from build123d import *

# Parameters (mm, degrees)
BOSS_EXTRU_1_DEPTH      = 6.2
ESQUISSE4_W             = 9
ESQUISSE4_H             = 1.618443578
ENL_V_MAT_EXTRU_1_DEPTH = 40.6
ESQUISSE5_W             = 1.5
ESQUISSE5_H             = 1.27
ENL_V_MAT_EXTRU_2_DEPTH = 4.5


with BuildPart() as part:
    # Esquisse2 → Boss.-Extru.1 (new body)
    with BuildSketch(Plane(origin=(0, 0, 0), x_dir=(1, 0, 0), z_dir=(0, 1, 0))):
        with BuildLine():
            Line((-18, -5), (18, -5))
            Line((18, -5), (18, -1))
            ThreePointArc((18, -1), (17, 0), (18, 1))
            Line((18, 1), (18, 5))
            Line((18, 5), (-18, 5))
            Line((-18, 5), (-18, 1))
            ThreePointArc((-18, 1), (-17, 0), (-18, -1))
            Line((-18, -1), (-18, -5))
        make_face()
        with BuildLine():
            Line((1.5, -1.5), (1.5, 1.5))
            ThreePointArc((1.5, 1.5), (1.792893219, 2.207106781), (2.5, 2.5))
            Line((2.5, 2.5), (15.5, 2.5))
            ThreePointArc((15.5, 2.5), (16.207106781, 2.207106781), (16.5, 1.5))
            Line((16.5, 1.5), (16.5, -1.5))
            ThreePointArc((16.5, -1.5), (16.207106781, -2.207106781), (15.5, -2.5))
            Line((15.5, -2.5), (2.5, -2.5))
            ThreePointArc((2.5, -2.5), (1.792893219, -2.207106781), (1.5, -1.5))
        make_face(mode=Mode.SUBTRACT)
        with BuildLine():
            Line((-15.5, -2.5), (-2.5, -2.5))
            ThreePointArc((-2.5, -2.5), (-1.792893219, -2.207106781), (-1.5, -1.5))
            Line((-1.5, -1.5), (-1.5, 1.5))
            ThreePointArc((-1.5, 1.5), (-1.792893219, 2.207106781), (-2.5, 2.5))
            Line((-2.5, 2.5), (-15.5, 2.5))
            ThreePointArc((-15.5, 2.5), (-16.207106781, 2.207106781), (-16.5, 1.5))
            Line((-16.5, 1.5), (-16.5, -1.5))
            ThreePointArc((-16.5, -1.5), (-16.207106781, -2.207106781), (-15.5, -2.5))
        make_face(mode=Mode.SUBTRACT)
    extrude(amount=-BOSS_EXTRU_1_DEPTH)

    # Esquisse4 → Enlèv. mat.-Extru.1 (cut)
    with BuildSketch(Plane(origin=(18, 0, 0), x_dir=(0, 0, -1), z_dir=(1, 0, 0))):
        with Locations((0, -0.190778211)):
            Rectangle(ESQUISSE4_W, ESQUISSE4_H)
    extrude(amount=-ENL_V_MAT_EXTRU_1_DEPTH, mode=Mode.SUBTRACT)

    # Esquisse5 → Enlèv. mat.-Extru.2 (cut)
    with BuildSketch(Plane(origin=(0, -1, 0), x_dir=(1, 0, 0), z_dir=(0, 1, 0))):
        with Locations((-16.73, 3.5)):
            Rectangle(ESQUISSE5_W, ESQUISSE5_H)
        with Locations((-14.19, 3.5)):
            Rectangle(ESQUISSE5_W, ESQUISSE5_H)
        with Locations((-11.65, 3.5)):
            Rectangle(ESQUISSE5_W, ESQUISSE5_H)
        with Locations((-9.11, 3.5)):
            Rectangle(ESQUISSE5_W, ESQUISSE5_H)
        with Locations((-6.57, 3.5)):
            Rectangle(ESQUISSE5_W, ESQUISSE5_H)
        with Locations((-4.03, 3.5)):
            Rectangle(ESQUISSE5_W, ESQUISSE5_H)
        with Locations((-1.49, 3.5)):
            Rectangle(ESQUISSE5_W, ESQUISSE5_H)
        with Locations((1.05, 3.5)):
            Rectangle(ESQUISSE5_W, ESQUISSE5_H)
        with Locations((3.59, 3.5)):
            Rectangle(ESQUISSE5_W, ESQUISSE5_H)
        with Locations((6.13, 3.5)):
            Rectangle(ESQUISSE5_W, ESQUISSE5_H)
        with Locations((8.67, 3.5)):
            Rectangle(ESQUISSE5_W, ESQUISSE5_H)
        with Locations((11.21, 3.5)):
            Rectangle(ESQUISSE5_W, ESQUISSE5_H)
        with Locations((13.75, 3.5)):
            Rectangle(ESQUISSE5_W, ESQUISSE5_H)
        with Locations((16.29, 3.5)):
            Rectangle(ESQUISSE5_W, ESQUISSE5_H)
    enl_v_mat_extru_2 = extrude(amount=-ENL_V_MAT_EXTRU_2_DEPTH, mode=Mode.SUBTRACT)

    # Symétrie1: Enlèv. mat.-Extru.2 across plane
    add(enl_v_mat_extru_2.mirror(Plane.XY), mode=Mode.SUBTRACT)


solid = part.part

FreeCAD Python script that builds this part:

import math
import FreeCAD as App
import Part
import Sketcher
Q = App.Units.Quantity


def add_polygon(sketch, points):
    """Adds a closed chain of lines whose ends are joined by coincident constraints."""
    first, n = sketch.GeometryCount, len(points)
    for a, b in zip(points, points[1:] + points[:1]):
        sketch.addGeometry(Part.LineSegment(App.Vector(*a, 0), App.Vector(*b, 0)), False)
    for i in range(n):
        sketch.addConstraint(Sketcher.Constraint("Coincident", first + i, 2, first + (i + 1) % n, 1))

doc = App.newDocument("Part")
body = doc.addObject("PartDesign::Body", "Body")

sketch1 = doc.addObject("Sketcher::SketchObject", "Sketch")
body.addObject(sketch1)
sketch1.AttachmentSupport = (doc.XZ_Plane, [""])
sketch1.MapMode = "FlatFace"
sketch1.addGeometry(Part.LineSegment(App.Vector(-18, 5, 0), App.Vector(18, 5, 0)), False)
sketch1.addGeometry(Part.LineSegment(App.Vector(18, 5, 0), App.Vector(18, 1, 0)), False)
sketch1.addGeometry(Part.ArcOfCircle(Part.Circle(App.Vector(18, 0, 0), App.Vector(0, 0, 1), 1), math.radians(90), math.radians(270)), False)
sketch1.addGeometry(Part.LineSegment(App.Vector(18, -1, 0), App.Vector(18, -5, 0)), False)
sketch1.addGeometry(Part.LineSegment(App.Vector(18, -5, 0), App.Vector(-18, -5, 0)), False)
sketch1.addGeometry(Part.LineSegment(App.Vector(-18, -5, 0), App.Vector(-18, -1, 0)), False)
sketch1.addGeometry(Part.ArcOfCircle(Part.Circle(App.Vector(-18, 0, 0), App.Vector(0, 0, 1), 1), math.radians(-90), math.radians(90)), False)
sketch1.addGeometry(Part.LineSegment(App.Vector(-18, 1, 0), App.Vector(-18, 5, 0)), False)
sketch1.addGeometry(Part.LineSegment(App.Vector(-2.5, 2.5, 0), App.Vector(-15.5, 2.5, 0)), False)
sketch1.addGeometry(Part.ArcOfCircle(Part.Circle(App.Vector(-15.5, 1.5, 0), App.Vector(0, 0, 1), 1), math.radians(90), math.radians(180)), False)
sketch1.addGeometry(Part.LineSegment(App.Vector(-16.5, 1.5, 0), App.Vector(-16.5, -1.5, 0)), False)
sketch1.addGeometry(Part.ArcOfCircle(Part.Circle(App.Vector(-15.5, -1.5, 0), App.Vector(0, 0, 1), 1), math.radians(-180), math.radians(-90)), False)
sketch1.addGeometry(Part.LineSegment(App.Vector(-15.5, -2.5, 0), App.Vector(-2.5, -2.5, 0)), False)
sketch1.addGeometry(Part.ArcOfCircle(Part.Circle(App.Vector(-2.5, -1.5, 0), App.Vector(0, 0, 1), 1), math.radians(-90), math.radians(0)), False)
sketch1.addGeometry(Part.LineSegment(App.Vector(-1.5, -1.5, 0), App.Vector(-1.5, 1.5, 0)), False)
sketch1.addGeometry(Part.ArcOfCircle(Part.Circle(App.Vector(-2.5, 1.5, 0), App.Vector(0, 0, 1), 1), math.radians(0), math.radians(90)), False)
sketch1.addGeometry(Part.ArcOfCircle(Part.Circle(App.Vector(2.5, 1.5, 0), App.Vector(0, 0, 1), 1), math.radians(90), math.radians(180)), False)
sketch1.addGeometry(Part.LineSegment(App.Vector(1.5, 1.5, 0), App.Vector(1.5, -1.5, 0)), False)
sketch1.addGeometry(Part.ArcOfCircle(Part.Circle(App.Vector(2.5, -1.5, 0), App.Vector(0, 0, 1), 1), math.radians(-180), math.radians(-90)), False)
sketch1.addGeometry(Part.LineSegment(App.Vector(2.5, -2.5, 0), App.Vector(15.5, -2.5, 0)), False)
sketch1.addGeometry(Part.ArcOfCircle(Part.Circle(App.Vector(15.5, -1.5, 0), App.Vector(0, 0, 1), 1), math.radians(-90), math.radians(0)), False)
sketch1.addGeometry(Part.LineSegment(App.Vector(16.5, -1.5, 0), App.Vector(16.5, 1.5, 0)), False)
sketch1.addGeometry(Part.ArcOfCircle(Part.Circle(App.Vector(15.5, 1.5, 0), App.Vector(0, 0, 1), 1), math.radians(0), math.radians(90)), False)
sketch1.addGeometry(Part.LineSegment(App.Vector(15.5, 2.5, 0), App.Vector(2.5, 2.5, 0)), False)
sketch1.addConstraint(Sketcher.Constraint("Coincident", 0, 2, 1, 1))
sketch1.addConstraint(Sketcher.Constraint("Coincident", 1, 2, 2, 1))
sketch1.addConstraint(Sketcher.Constraint("Coincident", 2, 2, 3, 1))
sketch1.addConstraint(Sketcher.Constraint("Coincident", 3, 2, 4, 1))
sketch1.addConstraint(Sketcher.Constraint("Coincident", 4, 2, 5, 1))
sketch1.addConstraint(Sketcher.Constraint("Coincident", 5, 2, 6, 1))
sketch1.addConstraint(Sketcher.Constraint("Coincident", 6, 2, 7, 1))
sketch1.addConstraint(Sketcher.Constraint("Coincident", 7, 2, 0, 1))
sketch1.addConstraint(Sketcher.Constraint("Tangent", 8, 2, 9, 1))
sketch1.addConstraint(Sketcher.Constraint("Tangent", 9, 2, 10, 1))
sketch1.addConstraint(Sketcher.Constraint("Tangent", 10, 2, 11, 1))
sketch1.addConstraint(Sketcher.Constraint("Tangent", 11, 2, 12, 1))
sketch1.addConstraint(Sketcher.Constraint("Tangent", 12, 2, 13, 1))
sketch1.addConstraint(Sketcher.Constraint("Tangent", 13, 2, 14, 1))
sketch1.addConstraint(Sketcher.Constraint("Tangent", 14, 2, 15, 1))
sketch1.addConstraint(Sketcher.Constraint("Tangent", 15, 2, 8, 1))
sketch1.addConstraint(Sketcher.Constraint("Tangent", 16, 2, 17, 1))
sketch1.addConstraint(Sketcher.Constraint("Tangent", 17, 2, 18, 1))
sketch1.addConstraint(Sketcher.Constraint("Tangent", 18, 2, 19, 1))
sketch1.addConstraint(Sketcher.Constraint("Tangent", 19, 2, 20, 1))
sketch1.addConstraint(Sketcher.Constraint("Tangent", 20, 2, 21, 1))
sketch1.addConstraint(Sketcher.Constraint("Tangent", 21, 2, 22, 1))
sketch1.addConstraint(Sketcher.Constraint("Tangent", 22, 2, 23, 1))
sketch1.addConstraint(Sketcher.Constraint("Tangent", 23, 2, 16, 1))
sketch1.addConstraint(Sketcher.Constraint("Horizontal", 0))
sketch1.addConstraint(Sketcher.Constraint("Vertical", 1))
sketch1.addConstraint(Sketcher.Constraint("Vertical", 3))
sketch1.addConstraint(Sketcher.Constraint("Horizontal", 4))
sketch1.addConstraint(Sketcher.Constraint("Vertical", 5))
sketch1.addConstraint(Sketcher.Constraint("Vertical", 7))
sketch1.addConstraint(Sketcher.Constraint("Horizontal", 8))
sketch1.addConstraint(Sketcher.Constraint("Vertical", 10))
sketch1.addConstraint(Sketcher.Constraint("Horizontal", 12))
sketch1.addConstraint(Sketcher.Constraint("Vertical", 14))
sketch1.addConstraint(Sketcher.Constraint("Vertical", 17))
sketch1.addConstraint(Sketcher.Constraint("Horizontal", 19))
sketch1.addConstraint(Sketcher.Constraint("Vertical", 21))
sketch1.addConstraint(Sketcher.Constraint("Horizontal", 23))
sketch1.addConstraint(Sketcher.Constraint("Equal", 2, 6))
sketch1.addConstraint(Sketcher.Constraint("Equal", 6, 9))
sketch1.addConstraint(Sketcher.Constraint("Equal", 9, 11))
sketch1.addConstraint(Sketcher.Constraint("Equal", 11, 13))
sketch1.addConstraint(Sketcher.Constraint("Equal", 13, 15))
sketch1.addConstraint(Sketcher.Constraint("Equal", 15, 16))
sketch1.addConstraint(Sketcher.Constraint("Equal", 16, 18))
sketch1.addConstraint(Sketcher.Constraint("Equal", 18, 20))
sketch1.addConstraint(Sketcher.Constraint("Equal", 20, 22))
sketch1.addConstraint(Sketcher.Constraint("Symmetric", 2, 3, 6, 3, -1, 1))
sketch1.addConstraint(Sketcher.Constraint("Symmetric", 13, 3, 16, 3, -1, 1))
sketch1.addConstraint(Sketcher.Constraint("Symmetric", 9, 3, 20, 3, -1, 1))
sketch1.addConstraint(Sketcher.Constraint("Symmetric", 0, 2, 4, 2, -1, 1))
sketch1.addConstraint(Sketcher.Constraint("Symmetric", 2, 2, 5, 2, -2))
sketch1.addConstraint(Sketcher.Constraint("Horizontal", 15, 3, 16, 3))
sketch1.addConstraint(Sketcher.Constraint("Vertical", 2, 3, 0, 2))
sketch1.addConstraint(Sketcher.Constraint("Vertical", 5, 2, 6, 2))
sketch1.addConstraint(Sketcher.Constraint("Radius", 2, Q("1 mm")))
sketch1.addConstraint(Sketcher.Constraint("DistanceX", 0, 1, 0, 2, Q("36 mm")))
sketch1.addConstraint(Sketcher.Constraint("DistanceX", 8, 2, 8, 1, Q("13 mm")))
sketch1.addConstraint(Sketcher.Constraint("DistanceY", 1, 2, 1, 1, Q("4 mm")))
sketch1.addConstraint(Sketcher.Constraint("DistanceY", 10, 2, 10, 1, Q("3 mm")))
sketch1.addConstraint(Sketcher.Constraint("DistanceX", 15, 3, 16, 3, Q("5 mm")))
pad1 = doc.addObject("PartDesign::Pad", "Pad")
body.addObject(pad1)
pad1.Profile = sketch1
pad1.Length = 6.2

sketch2 = doc.addObject("Sketcher::SketchObject", "Sketch001")
body.addObject(sketch2)
sketch2.AttachmentSupport = (doc.YZ_Plane, [""])
sketch2.MapMode = "FlatFace"
sketch2.AttachmentOffset = App.Placement(App.Vector(0, 0, 18), App.Rotation())
add_polygon(sketch2, [(0.6, 4.5), (-1, 4.5), (-1, -4.5), (0.6, -4.5)])
sketch2.addConstraint(Sketcher.Constraint("Horizontal", 0))
sketch2.addConstraint(Sketcher.Constraint("Vertical", 1))
sketch2.addConstraint(Sketcher.Constraint("Horizontal", 2))
sketch2.addConstraint(Sketcher.Constraint("Vertical", 3))
sketch2.addConstraint(Sketcher.Constraint("DistanceY", 1, 2, 1, 1, Q("9 mm")))
sketch2.addConstraint(Sketcher.Constraint("DistanceX", 0, 2, -1, 1, Q("1 mm")))
sketch2.addConstraint(Sketcher.Constraint("DistanceY", -1, 1, 0, 2, Q("4.5 mm")))
sketch2.addConstraint(Sketcher.Constraint("DistanceX", 0, 2, 0, 1, Q("1.618444 mm")))
pocket1 = doc.addObject("PartDesign::Pocket", "Pocket")
body.addObject(pocket1)
pocket1.Profile = sketch2
pocket1.Length = 40.6

sketch3 = doc.addObject("Sketcher::SketchObject", "Sketch002")
body.addObject(sketch3)
sketch3.AttachmentSupport = (doc.XZ_Plane, [""])
sketch3.MapMode = "FlatFace"
sketch3.AttachmentOffset = App.Placement(App.Vector(0, 0, 1), App.Rotation())
add_polygon(sketch3, [(-17.5, -4.1), (-17.5, -2.9), (-16, -2.9), (-16, -4.1)])
add_polygon(sketch3, [(-14.9, -4.1), (-14.9, -2.9), (-13.4, -2.9), (-13.4, -4.1)])
add_polygon(sketch3, [(-12.4, -4.1), (-12.4, -2.9), (-10.9, -2.9), (-10.9, -4.1)])
add_polygon(sketch3, [(-9.9, -4.1), (-9.9, -2.9), (-8.4, -2.9), (-8.4, -4.1)])
add_polygon(sketch3, [(-7.3, -4.1), (-7.3, -2.9), (-5.8, -2.9), (-5.8, -4.1)])
add_polygon(sketch3, [(-4.8, -4.1), (-4.8, -2.9), (-3.3, -2.9), (-3.3, -4.1)])
add_polygon(sketch3, [(-2.2, -4.1), (-2.2, -2.9), (-0.7, -2.9), (-0.7, -4.1)])
add_polygon(sketch3, [(0.3, -4.1), (0.3, -2.9), (1.8, -2.9), (1.8, -4.1)])
add_polygon(sketch3, [(2.8, -4.1), (2.8, -2.9), (4.3, -2.9), (4.3, -4.1)])
add_polygon(sketch3, [(5.4, -4.1), (5.4, -2.9), (6.9, -2.9), (6.9, -4.1)])
add_polygon(sketch3, [(7.9, -4.1), (7.9, -2.9), (9.4, -2.9), (9.4, -4.1)])
add_polygon(sketch3, [(10.5, -4.1), (10.5, -2.9), (12, -2.9), (12, -4.1)])
add_polygon(sketch3, [(13, -4.1), (13, -2.9), (14.5, -2.9), (14.5, -4.1)])
add_polygon(sketch3, [(15.5, -4.1), (15.5, -2.9), (17, -2.9), (17, -4.1)])
sketch3.addConstraint(Sketcher.Constraint("Vertical", 0))
sketch3.addConstraint(Sketcher.Constraint("Horizontal", 1))
sketch3.addConstraint(Sketcher.Constraint("Vertical", 2))
sketch3.addConstraint(Sketcher.Constraint("Horizontal", 3))
sketch3.addConstraint(Sketcher.Constraint("Vertical", 4))
sketch3.addConstraint(Sketcher.Constraint("Horizontal", 5))
sketch3.addConstraint(Sketcher.Constraint("Vertical", 6))
sketch3.addConstraint(Sketcher.Constraint("Horizontal", 7))
sketch3.addConstraint(Sketcher.Constraint("Vertical", 8))
sketch3.addConstraint(Sketcher.Constraint("Horizontal", 9))
sketch3.addConstraint(Sketcher.Constraint("Vertical", 10))
sketch3.addConstraint(Sketcher.Constraint("Horizontal", 11))
sketch3.addConstraint(Sketcher.Constraint("Vertical", 12))
sketch3.addConstraint(Sketcher.Constraint("Horizontal", 13))
sketch3.addConstraint(Sketcher.Constraint("Vertical", 14))
sketch3.addConstraint(Sketcher.Constraint("Horizontal", 15))
sketch3.addConstraint(Sketcher.Constraint("Vertical", 16))
sketch3.addConstraint(Sketcher.Constraint("Horizontal", 17))
sketch3.addConstraint(Sketcher.Constraint("Vertical", 18))
sketch3.addConstraint(Sketcher.Constraint("Horizontal", 19))
sketch3.addConstraint(Sketcher.Constraint("Vertical", 20))
sketch3.addConstraint(Sketcher.Constraint("Horizontal", 21))
sketch3.addConstraint(Sketcher.Constraint("Vertical", 22))
sketch3.addConstraint(Sketcher.Constraint("Horizontal", 23))
sketch3.addConstraint(Sketcher.Constraint("Vertical", 24))
sketch3.addConstraint(Sketcher.Constraint("Horizontal", 25))
sketch3.addConstraint(Sketcher.Constraint("Vertical", 26))
sketch3.addConstraint(Sketcher.Constraint("Horizontal", 27))
sketch3.addConstraint(Sketcher.Constraint("Vertical", 28))
sketch3.addConstraint(Sketcher.Constraint("Horizontal", 29))
sketch3.addConstraint(Sketcher.Constraint("Vertical", 30))
sketch3.addConstraint(Sketcher.Constraint("Horizontal", 31))
sketch3.addConstraint(Sketcher.Constraint("Vertical", 32))
sketch3.addConstraint(Sketcher.Constraint("Horizontal", 33))
sketch3.addConstraint(Sketcher.Constraint("Vertical", 34))
sketch3.addConstraint(Sketcher.Constraint("Horizontal", 35))
sketch3.addConstraint(Sketcher.Constraint("Vertical", 36))
sketch3.addConstraint(Sketcher.Constraint("Horizontal", 37))
sketch3.addConstraint(Sketcher.Constraint("Vertical", 38))
sketch3.addConstraint(Sketcher.Constraint("Horizontal", 39))
sketch3.addConstraint(Sketcher.Constraint("Vertical", 40))
sketch3.addConstraint(Sketcher.Constraint("Horizontal", 41))
sketch3.addConstraint(Sketcher.Constraint("Vertical", 42))
sketch3.addConstraint(Sketcher.Constraint("Horizontal", 43))
sketch3.addConstraint(Sketcher.Constraint("Vertical", 44))
sketch3.addConstraint(Sketcher.Constraint("Horizontal", 45))
sketch3.addConstraint(Sketcher.Constraint("Vertical", 46))
sketch3.addConstraint(Sketcher.Constraint("Horizontal", 47))
sketch3.addConstraint(Sketcher.Constraint("Vertical", 48))
sketch3.addConstraint(Sketcher.Constraint("Horizontal", 49))
sketch3.addConstraint(Sketcher.Constraint("Vertical", 50))
sketch3.addConstraint(Sketcher.Constraint("Horizontal", 51))
sketch3.addConstraint(Sketcher.Constraint("Vertical", 52))
sketch3.addConstraint(Sketcher.Constraint("Horizontal", 53))
sketch3.addConstraint(Sketcher.Constraint("Vertical", 54))
sketch3.addConstraint(Sketcher.Constraint("Horizontal", 55))
sketch3.addConstraint(Sketcher.Constraint("Horizontal", 1, 2, 4, 2))
sketch3.addConstraint(Sketcher.Constraint("Horizontal", 3, 2, 6, 2))
sketch3.addConstraint(Sketcher.Constraint("Horizontal", 5, 2, 8, 2))
sketch3.addConstraint(Sketcher.Constraint("Horizontal", 7, 2, 10, 2))
sketch3.addConstraint(Sketcher.Constraint("Horizontal", 9, 2, 12, 2))
sketch3.addConstraint(Sketcher.Constraint("Horizontal", 11, 2, 14, 2))
sketch3.addConstraint(Sketcher.Constraint("Horizontal", 13, 2, 16, 2))
sketch3.addConstraint(Sketcher.Constraint("Horizontal", 15, 2, 18, 2))
sketch3.addConstraint(Sketcher.Constraint("Horizontal", 17, 2, 20, 2))
sketch3.addConstraint(Sketcher.Constraint("Horizontal", 19, 2, 22, 2))
sketch3.addConstraint(Sketcher.Constraint("Horizontal", 21, 2, 24, 2))
sketch3.addConstraint(Sketcher.Constraint("Horizontal", 23, 2, 26, 2))
sketch3.addConstraint(Sketcher.Constraint("Horizontal", 25, 2, 28, 2))
sketch3.addConstraint(Sketcher.Constraint("Horizontal", 27, 2, 30, 2))
sketch3.addConstraint(Sketcher.Constraint("Horizontal", 29, 2, 32, 2))
sketch3.addConstraint(Sketcher.Constraint("Horizontal", 31, 2, 34, 2))
sketch3.addConstraint(Sketcher.Constraint("Horizontal", 33, 2, 36, 2))
sketch3.addConstraint(Sketcher.Constraint("Horizontal", 35, 2, 38, 2))
sketch3.addConstraint(Sketcher.Constraint("Horizontal", 37, 2, 40, 2))
sketch3.addConstraint(Sketcher.Constraint("Horizontal", 39, 2, 42, 2))
sketch3.addConstraint(Sketcher.Constraint("Horizontal", 41, 2, 44, 2))
sketch3.addConstraint(Sketcher.Constraint("Horizontal", 43, 2, 46, 2))
sketch3.addConstraint(Sketcher.Constraint("Horizontal", 45, 2, 48, 2))
sketch3.addConstraint(Sketcher.Constraint("Horizontal", 47, 2, 50, 2))
sketch3.addConstraint(Sketcher.Constraint("Horizontal", 49, 2, 52, 2))
sketch3.addConstraint(Sketcher.Constraint("Horizontal", 51, 2, 54, 2))
sketch3.addConstraint(Sketcher.Constraint("Equal", 3, 5))
sketch3.addConstraint(Sketcher.Constraint("Equal", 7, 9))
sketch3.addConstraint(Sketcher.Constraint("Equal", 11, 13))
sketch3.addConstraint(Sketcher.Constraint("Equal", 15, 17))
sketch3.addConstraint(Sketcher.Constraint("Equal", 19, 21))
sketch3.addConstraint(Sketcher.Constraint("Equal", 23, 25))
sketch3.addConstraint(Sketcher.Constraint("Equal", 27, 29))
sketch3.addConstraint(Sketcher.Constraint("Equal", 31, 33))
sketch3.addConstraint(Sketcher.Constraint("Equal", 35, 37))
sketch3.addConstraint(Sketcher.Constraint("Equal", 39, 41))
sketch3.addConstraint(Sketcher.Constraint("Equal", 43, 45))
sketch3.addConstraint(Sketcher.Constraint("Equal", 47, 49))
sketch3.addConstraint(Sketcher.Constraint("Equal", 51, 53))
sketch3.addConstraint(Sketcher.Constraint("DistanceX", 1, 1, 1, 2, Q("1.5 mm")))
sketch3.addConstraint(Sketcher.Constraint("DistanceX", -1, 1, 48, 2, Q("13 mm")))
sketch3.addConstraint(Sketcher.Constraint("DistanceY", 0, 1, 0, 2, Q("1.27 mm")))
sketch3.addConstraint(Sketcher.Constraint("DistanceX", 8, 2, -1, 1, Q("12.4 mm")))
sketch3.addConstraint(Sketcher.Constraint("DistanceX", -1, 1, 28, 2, Q("0.3 mm")))
sketch3.addConstraint(Sketcher.Constraint("DistanceX", 0, 2, -1, 1, Q("17.48 mm")))
sketch3.addConstraint(Sketcher.Constraint("DistanceX", 4, 2, -1, 1, Q("14.94 mm")))
sketch3.addConstraint(Sketcher.Constraint("DistanceX", 12, 2, -1, 1, Q("9.86 mm")))
sketch3.addConstraint(Sketcher.Constraint("DistanceX", 16, 2, -1, 1, Q("7.32 mm")))
sketch3.addConstraint(Sketcher.Constraint("DistanceX", 20, 2, -1, 1, Q("4.78 mm")))
sketch3.addConstraint(Sketcher.Constraint("DistanceX", 24, 2, -1, 1, Q("2.24 mm")))
sketch3.addConstraint(Sketcher.Constraint("DistanceX", -1, 1, 32, 2, Q("2.84 mm")))
sketch3.addConstraint(Sketcher.Constraint("DistanceX", -1, 1, 36, 2, Q("5.38 mm")))
sketch3.addConstraint(Sketcher.Constraint("DistanceX", -1, 1, 40, 2, Q("7.92 mm")))
sketch3.addConstraint(Sketcher.Constraint("DistanceX", -1, 1, 44, 2, Q("10.46 mm")))
sketch3.addConstraint(Sketcher.Constraint("DistanceX", -1, 1, 52, 2, Q("15.54 mm")))
sketch3.addConstraint(Sketcher.Constraint("DistanceY", 0, 2, -1, 1, Q("2.865 mm")))
pocket2 = doc.addObject("PartDesign::Pocket", "Pocket001")
body.addObject(pocket2)
pocket2.Profile = sketch3
pocket2.Length = 4.5
pocket2.Reversed = True
doc.recompute()

mirrored = doc.addObject("PartDesign::Mirrored", "Mirrored")
body.addObject(mirrored)
mirrored.Originals = [pocket2]
mirrored.MirrorPlane = (doc.XY_Plane, [""])
body.Tip = mirrored

doc.recompute()
